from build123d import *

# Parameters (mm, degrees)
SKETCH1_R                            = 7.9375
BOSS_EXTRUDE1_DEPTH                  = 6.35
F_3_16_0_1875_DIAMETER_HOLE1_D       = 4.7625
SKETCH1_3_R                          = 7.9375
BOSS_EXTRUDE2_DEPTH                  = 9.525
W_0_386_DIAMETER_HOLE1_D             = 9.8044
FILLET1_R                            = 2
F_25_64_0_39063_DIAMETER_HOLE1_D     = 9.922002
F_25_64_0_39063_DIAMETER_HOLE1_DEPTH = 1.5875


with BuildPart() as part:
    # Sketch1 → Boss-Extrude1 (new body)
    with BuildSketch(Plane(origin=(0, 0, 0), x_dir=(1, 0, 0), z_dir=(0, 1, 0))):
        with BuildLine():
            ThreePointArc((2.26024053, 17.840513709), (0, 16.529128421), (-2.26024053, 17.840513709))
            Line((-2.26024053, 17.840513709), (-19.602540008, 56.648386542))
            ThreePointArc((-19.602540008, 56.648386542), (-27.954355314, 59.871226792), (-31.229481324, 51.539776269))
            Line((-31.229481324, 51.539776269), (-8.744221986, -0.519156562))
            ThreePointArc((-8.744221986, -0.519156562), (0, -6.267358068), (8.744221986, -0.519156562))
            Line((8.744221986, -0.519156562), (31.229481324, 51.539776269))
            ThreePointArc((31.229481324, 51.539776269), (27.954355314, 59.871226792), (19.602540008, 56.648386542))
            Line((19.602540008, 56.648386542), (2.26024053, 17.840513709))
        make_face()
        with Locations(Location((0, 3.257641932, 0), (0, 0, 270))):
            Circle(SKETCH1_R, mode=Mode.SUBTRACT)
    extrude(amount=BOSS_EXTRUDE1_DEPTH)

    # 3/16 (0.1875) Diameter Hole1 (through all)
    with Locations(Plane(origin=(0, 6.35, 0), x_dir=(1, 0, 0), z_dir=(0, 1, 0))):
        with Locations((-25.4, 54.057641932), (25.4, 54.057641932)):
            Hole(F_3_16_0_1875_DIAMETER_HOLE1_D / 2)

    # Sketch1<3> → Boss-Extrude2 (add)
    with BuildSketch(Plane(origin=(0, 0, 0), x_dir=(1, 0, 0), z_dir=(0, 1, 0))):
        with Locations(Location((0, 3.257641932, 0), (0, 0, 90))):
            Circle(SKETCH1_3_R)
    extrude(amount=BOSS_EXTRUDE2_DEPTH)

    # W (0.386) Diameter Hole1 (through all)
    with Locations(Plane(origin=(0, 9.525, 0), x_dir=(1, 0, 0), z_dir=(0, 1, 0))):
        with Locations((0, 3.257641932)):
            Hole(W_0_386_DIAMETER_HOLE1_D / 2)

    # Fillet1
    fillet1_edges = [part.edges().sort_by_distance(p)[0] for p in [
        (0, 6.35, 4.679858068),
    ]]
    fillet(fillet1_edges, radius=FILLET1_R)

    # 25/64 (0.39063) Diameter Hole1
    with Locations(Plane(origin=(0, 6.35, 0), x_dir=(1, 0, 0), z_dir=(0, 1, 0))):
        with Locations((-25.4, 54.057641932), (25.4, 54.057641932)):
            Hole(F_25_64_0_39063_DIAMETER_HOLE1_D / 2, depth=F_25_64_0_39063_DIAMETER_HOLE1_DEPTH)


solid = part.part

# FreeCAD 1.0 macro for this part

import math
import FreeCAD as App
import Part
import Sketcher

V = App.Vector
Q = App.Units.Quantity


def edges_at(feature, points):
    """Names of the edges that pass closest to the given points."""
    edges = feature.Shape.Edges
    near = lambda p: min(range(len(edges)), key=lambda i: edges[i].distToShape(Part.Vertex(*p))[0])
    return sorted({f"Edge{near(p) + 1}" for p in points})

doc = App.newDocument("Part")
body = doc.addObject("PartDesign::Body", "Body")

# Sketch on XZ plane
sketch1 = body.newObject("Sketcher::SketchObject", "Sketch")
sketch1.AttachmentSupport = (doc.getObject("XZ_Plane"), [""])
sketch1.MapMode = "FlatFace"
sketch1.addGeometry(Part.ArcOfCircle(Part.Circle(V(0, -19.1, 0), V(0, 0, 1), 2.6), math.radians(30), math.radians(150)), False)
sketch1.addGeometry(Part.LineSegment(V(-2.3, -17.8, 0), V(-19.6, -56.6, 0)), False)
sketch1.addGeometry(Part.ArcOfCircle(Part.Circle(V(-25.4, -54.1, 0), V(0, 0, 1), 6.3), math.radians(157), math.radians(336)), False)
sketch1.addGeometry(Part.LineSegment(V(-31.2, -51.5, 0), V(-8.7, 0.5, 0)), False)
sketch1.addGeometry(Part.ArcOfCircle(Part.Circle(V(0, -3.3, 0), V(0, 0, 1), 9.5), math.radians(23), math.radians(157)), False)
sketch1.addGeometry(Part.LineSegment(V(8.7, 0.5, 0), V(31.2, -51.5, 0)), False)
sketch1.addGeometry(Part.ArcOfCircle(Part.Circle(V(25.4, -54.1, 0), V(0, 0, 1), 6.3), math.radians(-156), math.radians(23)), False)
sketch1.addGeometry(Part.LineSegment(V(19.6, -56.6, 0), V(2.3, -17.8, 0)), False)
sketch1.addGeometry(Part.Circle(V(0, -3.3, 0), V(0, 0, 1), 7.9), False)
sketch1.addConstraint(Sketcher.Constraint("Coincident", 0, 2, 1, 1))
sketch1.addConstraint(Sketcher.Constraint("Tangent", 1, 2, 2, 2))
sketch1.addConstraint(Sketcher.Constraint("Tangent", 2, 1, 3, 1))
sketch1.addConstraint(Sketcher.Constraint("Tangent", 3, 2, 4, 2))
sketch1.addConstraint(Sketcher.Constraint("Tangent", 4, 1, 5, 1))
sketch1.addConstraint(Sketcher.Constraint("Tangent", 5, 2, 6, 2))
sketch1.addConstraint(Sketcher.Constraint("Tangent", 6, 1, 7, 1))
sketch1.addConstraint(Sketcher.Constraint("Coincident", 7, 2, 0, 1))
sketch1.addConstraint(Sketcher.Constraint("Coincident", 8, 3, 4, 3))
sketch1.addConstraint(Sketcher.Constraint("Equal", 2, 6))
sketch1.addConstraint(Sketcher.Constraint("Symmetric", 2, 3, 6, 3, -2))
sketch1.addConstraint(Sketcher.Constraint("Symmetric", 0, 2, 7, 2, -2))
sketch1.addConstraint(Sketcher.Constraint("PointOnObject", 4, 3, -2))
sketch1.addConstraint(Sketcher.Constraint("Radius", 2, Q("0.25 in")))
sketch1.addConstraint(Sketcher.Constraint("Diameter", 8, Q("0.625 in")))
sketch1.addConstraint(Sketcher.Constraint("DistanceX", 2, 3, -1, 1, Q("1 in")))
sketch1.addConstraint(Sketcher.Constraint("Radius", 4, Q("0.375 in")))
sketch1.addConstraint(Sketcher.Constraint("DistanceY", 2, 3, 4, 3, Q("2 in")))
sketch1.addConstraint(Sketcher.Constraint("DistanceY", 2, 3, 0, 3, Q("1.375 in")))
sketch1.addConstraint(Sketcher.Constraint("Radius", 0, Q("2.603514 mm")))
sketch1.addConstraint(Sketcher.Constraint("DistanceX", 1, 2, 0, 2, Q("17.342299 mm")))
sketch1.addConstraint(Sketcher.Constraint("DistanceY", 0, 3, -1, 1, Q("19.132642 mm")))
pad1 = body.newObject("PartDesign::Pad", "Pad")
pad1.Profile = sketch1
pad1.Length = Q("0.25 in")
pad1.Reversed = True

# Sketch on XZ plane
sketch2 = body.newObject("Sketcher::SketchObject", "Sketch001")
sketch2.AttachmentSupport = (doc.getObject("XZ_Plane"), [""])
sketch2.MapMode = "FlatFace"
sketch2.AttachmentOffset = App.Placement(V(0, 0, -0.25 * 25.4), App.Rotation())
sketch2.addGeometry(Part.Circle(V(-25.4, -54.1, 0), V(0, 0, 1), 2.4), False)
sketch2.addGeometry(Part.Circle(V(25.4, -54.1, 0), V(0, 0, 1), 2.4), False)
sketch2.addConstraint(Sketcher.Constraint("Equal", 0, 1))
sketch2.addConstraint(Sketcher.Constraint("Symmetric", 0, 3, 1, 3, -2))
sketch2.addConstraint(Sketcher.Constraint("Diameter", 0, Q("0.1875 in")))
sketch2.addConstraint(Sketcher.Constraint("DistanceX", 0, 3, -1, 1, Q("1 in")))
sketch2.addConstraint(Sketcher.Constraint("DistanceY", 0, 3, -1, 1, Q("54.057642 mm")))
doc.recompute()
hole = body.newObject("PartDesign::Hole", "Hole")
hole.Profile = sketch2
hole.ThreadType = "None"
hole.Diameter = Q("0.1875 in")
hole.DepthType = "ThroughAll"
hole.Reversed = True

# Sketch on XZ plane
sketch3 = body.newObject("Sketcher::SketchObject", "Sketch002")
sketch3.AttachmentSupport = (doc.getObject("XZ_Plane"), [""])
sketch3.MapMode = "FlatFace"
sketch3.addGeometry(Part.Circle(V(0, -3, 0), V(0, 0, 1), 8), False)
sketch3.addConstraint(Sketcher.Constraint("PointOnObject", 0, 3, -2))
sketch3.addConstraint(Sketcher.Constraint("Diameter", 0, Q("0.625 in")))
sketch3.addConstraint(Sketcher.Constraint("DistanceY", 0, 3, -1, 1, Q("3.257642 mm")))
pad2 = body.newObject("PartDesign::Pad", "Pad001")
pad2.Profile = sketch3
pad2.Length = Q("0.375 in")
pad2.Reversed = True

# Sketch on XZ plane
sketch4 = body.newObject("Sketcher::SketchObject", "Sketch003")
sketch4.AttachmentSupport = (doc.getObject("XZ_Plane"), [""])
sketch4.MapMode = "FlatFace"
sketch4.AttachmentOffset = App.Placement(V(0, 0, -0.375 * 25.4), App.Rotation())
sketch4.addGeometry(Part.Circle(V(0, -3.3, 0), V(0, 0, 1), 4.9), False)
sketch4.addConstraint(Sketcher.Constraint("PointOnObject", 0, 3, -2))
sketch4.addConstraint(Sketcher.Constraint("Diameter", 0, Q("0.386 in")))
sketch4.addConstraint(Sketcher.Constraint("DistanceY", 0, 3, -1, 1, Q("3.257642 mm")))
doc.recompute()
hole2 = body.newObject("PartDesign::Hole", "Hole001")
hole2.Profile = sketch4
hole2.ThreadType = "None"
hole2.Diameter = Q("0.386 in")
hole2.DepthType = "ThroughAll"
hole2.Reversed = True
doc.recompute()

fillet = body.newObject("PartDesign::Fillet", "Fillet")
fillet.Base = (hole2, edges_at(hole2, [(0, 6.35, 4.68)]))
fillet.Radius = 2

# Sketch on XZ plane
sketch5 = body.newObject("Sketcher::SketchObject", "Sketch004")
sketch5.AttachmentSupport = (doc.getObject("XZ_Plane"), [""])
sketch5.MapMode = "FlatFace"
sketch5.AttachmentOffset = App.Placement(V(0, 0, -0.25 * 25.4), App.Rotation())
sketch5.addGeometry(Part.Circle(V(-25.4, -54.1, 0), V(0, 0, 1), 5), False)
sketch5.addGeometry(Part.Circle(V(25.4, -54.1, 0), V(0, 0, 1), 5), False)
sketch5.addConstraint(Sketcher.Constraint("Equal", 0, 1))
sketch5.addConstraint(Sketcher.Constraint("Symmetric", 0, 3, 1, 3, -2))
sketch5.addConstraint(Sketcher.Constraint("DistanceX", 0, 3, -1, 1, Q("1 in")))
sketch5.addConstraint(Sketcher.Constraint("Diameter", 0, Q("9.922002 mm")))
sketch5.addConstraint(Sketcher.Constraint("DistanceY", 0, 3, -1, 1, Q("54.057642 mm")))
doc.recompute()
hole3 = body.newObject("PartDesign::Hole", "Hole002")
hole3.Profile = sketch5
hole3.ThreadType = "None"
hole3.Diameter = 9.922002
hole3.DepthType = "Dimension"
hole3.Depth = Q("0.0625 in")
hole3.DrillPoint = "Flat"
hole3.Reversed = True

doc.recompute()
